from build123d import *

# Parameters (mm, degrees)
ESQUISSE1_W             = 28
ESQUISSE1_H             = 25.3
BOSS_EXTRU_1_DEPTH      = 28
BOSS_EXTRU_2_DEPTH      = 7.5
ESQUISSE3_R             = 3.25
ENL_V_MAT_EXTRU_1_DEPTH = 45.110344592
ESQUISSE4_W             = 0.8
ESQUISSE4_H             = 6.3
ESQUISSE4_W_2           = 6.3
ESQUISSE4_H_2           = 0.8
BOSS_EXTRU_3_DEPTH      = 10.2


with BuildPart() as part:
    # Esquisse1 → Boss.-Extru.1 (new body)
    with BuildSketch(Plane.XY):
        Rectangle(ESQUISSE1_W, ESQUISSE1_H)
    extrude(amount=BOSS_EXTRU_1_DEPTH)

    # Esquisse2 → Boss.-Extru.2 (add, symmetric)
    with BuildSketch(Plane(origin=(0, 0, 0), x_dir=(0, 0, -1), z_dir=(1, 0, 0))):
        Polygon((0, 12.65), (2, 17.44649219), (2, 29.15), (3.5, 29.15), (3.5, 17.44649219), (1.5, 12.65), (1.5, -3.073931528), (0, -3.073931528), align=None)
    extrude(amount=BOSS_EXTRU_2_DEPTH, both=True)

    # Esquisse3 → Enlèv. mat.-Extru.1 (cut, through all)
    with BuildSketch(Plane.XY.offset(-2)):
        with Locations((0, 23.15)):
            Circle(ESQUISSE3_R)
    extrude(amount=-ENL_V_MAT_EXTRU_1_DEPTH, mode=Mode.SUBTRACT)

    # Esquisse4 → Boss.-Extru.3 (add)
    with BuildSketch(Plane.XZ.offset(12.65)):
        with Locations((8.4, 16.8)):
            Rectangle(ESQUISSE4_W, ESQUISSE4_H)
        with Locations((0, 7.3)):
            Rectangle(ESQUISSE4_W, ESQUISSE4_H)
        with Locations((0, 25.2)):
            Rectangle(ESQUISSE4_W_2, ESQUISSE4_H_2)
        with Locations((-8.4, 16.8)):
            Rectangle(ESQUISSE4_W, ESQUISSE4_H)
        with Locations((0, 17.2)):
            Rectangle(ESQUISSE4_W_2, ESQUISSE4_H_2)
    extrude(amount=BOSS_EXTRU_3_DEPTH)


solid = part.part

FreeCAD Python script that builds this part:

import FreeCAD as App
import Part
import Sketcher
from FreeCAD import Vector


def add_polygon(sketch, points):
    """Adds a closed chain of lines whose ends are joined by coincident constraints."""
    first, n = sketch.GeometryCount, len(points)
    for a, b in zip(points, points[1:] + points[:1]):
        sketch.addGeometry(Part.LineSegment(App.Vector(*a, 0), App.Vector(*b, 0)), False)
    for i in range(n):
        sketch.addConstraint(Sketcher.Constraint("Coincident", first + i, 2, first + (i + 1) % n, 1))

doc = App.newDocument("Part")
body = doc.addObject("PartDesign::Body", "Body")

sketch1 = body.newObject("Sketcher::SketchObject", "Sketch")
sketch1.AttachmentSupport = (doc.getObject("XY_Plane"), [""])
sketch1.MapMode = "FlatFace"
add_polygon(sketch1, [(-14, 13), (-14, -13), (14, -13), (14, 13)])
sketch1.addConstraint([
    Sketcher.Constraint("Vertical", 0),
    Sketcher.Constraint("Horizontal", 1),
    Sketcher.Constraint("Vertical", 2),
    Sketcher.Constraint("Horizontal", 3),
    Sketcher.Constraint("Symmetric", 0, 2, 2, 2, -1, 1),
    Sketcher.Constraint("DistanceX", 1, 1, 1, 2, 28.0),
    Sketcher.Constraint("DistanceY", 0, 2, 0, 1, 25.3),
])
pad1 = body.newObject("PartDesign::Pad", "Pad")
pad1.Profile = sketch1
pad1.Length = 28

sketch2 = body.newObject("Sketcher::SketchObject", "Sketch001")
sketch2.AttachmentSupport = (doc.getObject("YZ_Plane"), [""])
sketch2.MapMode = "FlatFace"
add_polygon(sketch2, [(17.4, -2), (12.7, 0), (-3.1, 0), (-3.1, -1.5), (12.7, -1.5), (17.4, -3.5), (29.1, -3.5), (29.1, -2)])
sketch2.addConstraint([
    Sketcher.Constraint("Horizontal", 1),
    Sketcher.Constraint("Vertical", 2),
    Sketcher.Constraint("Horizontal", 3),
    Sketcher.Constraint("Horizontal", 5),
    Sketcher.Constraint("Vertical", 6),
    Sketcher.Constraint("Horizontal", 7),
    Sketcher.Constraint("PointOnObject", 0, 2, -1),
    Sketcher.Constraint("Parallel", 0, 4),
    Sketcher.Constraint("Vertical", 0, 2, 3, 2),
    Sketcher.Constraint("Vertical", 4, 2, 7, 2),
    Sketcher.Constraint("DistanceY", 2, 2, 2, 1, 1.5),
    Sketcher.Constraint("DistanceY", 6, 2, -1, 1, 2.0),
    Sketcher.Constraint("DistanceX", 3, 2, 5, 2, 16.5),
    Sketcher.Constraint("DistanceX", -1, 1, 0, 2, 12.65),
    Sketcher.Constraint("DistanceX", 1, 2, 1, 1, 15.723932),
    Sketcher.Constraint("DistanceX", 5, 1, 5, 2, 11.703508),
])
pad2 = body.newObject("PartDesign::Pad", "Pad001")
pad2.Profile = sketch2
pad2.Length = 15
pad2.Midplane = True

sketch3 = body.newObject("Sketcher::SketchObject", "Sketch002")
sketch3.AttachmentSupport = (doc.getObject("XY_Plane"), [""])
sketch3.MapMode = "FlatFace"
sketch3.AttachmentOffset = App.Placement(Vector(0, 0, -2), App.Rotation())
sketch3.addGeometry(Part.Circle(Vector(0, 23.1, 0), Vector(0, 0, 1), 3.2), False)
sketch3.addConstraint([
    Sketcher.Constraint("PointOnObject", 0, 3, -2),
    Sketcher.Constraint("Diameter", 0, 6.5),
    Sketcher.Constraint("DistanceY", -1, 1, 0, 3, 23.15),
])
pocket1 = body.newObject("PartDesign::Pocket", "Pocket")
pocket1.Profile = sketch3
pocket1.Type = "ThroughAll"

sketch4 = body.newObject("Sketcher::SketchObject", "Sketch003")
sketch4.AttachmentSupport = (doc.getObject("XZ_Plane"), [""])
sketch4.MapMode = "FlatFace"
sketch4.AttachmentOffset = App.Placement(Vector(0, 0, 12.65), App.Rotation())
add_polygon(sketch4, [(8, 19.9), (8, 13.7), (8.8, 13.7), (8.8, 19.9)])
add_polygon(sketch4, [(-0.4, 10.4), (-0.4, 4.2), (0.4, 4.2), (0.4, 10.4)])
add_polygon(sketch4, [(-3.1, 25.6), (-3.1, 24.8), (3.1, 24.8), (3.1, 25.6)])
add_polygon(sketch4, [(-8.8, 19.9), (-8.8, 13.7), (-8, 13.7), (-8, 19.9)])
add_polygon(sketch4, [(-3.1, 17.6), (-3.1, 16.8), (3.1, 16.8), (3.1, 17.6)])
sketch4.addConstraint([
    Sketcher.Constraint("Vertical", 0),
    Sketcher.Constraint("Horizontal", 1),
    Sketcher.Constraint("Vertical", 2),
    Sketcher.Constraint("Horizontal", 3),
    Sketcher.Constraint("Vertical", 4),
    Sketcher.Constraint("Horizontal", 5),
    Sketcher.Constraint("Vertical", 6),
    Sketcher.Constraint("Horizontal", 7),
    Sketcher.Constraint("Vertical", 8),
    Sketcher.Constraint("Horizontal", 9),
    Sketcher.Constraint("Vertical", 10),
    Sketcher.Constraint("Horizontal", 11),
    Sketcher.Constraint("Vertical", 12),
    Sketcher.Constraint("Horizontal", 13),
    Sketcher.Constraint("Vertical", 14),
    Sketcher.Constraint("Horizontal", 15),
    Sketcher.Constraint("Vertical", 16),
    Sketcher.Constraint("Horizontal", 17),
    Sketcher.Constraint("Vertical", 18),
    Sketcher.Constraint("Horizontal", 19),
    Sketcher.Constraint("Symmetric", 1, 2, 12, 2, -2),
    Sketcher.Constraint("Symmetric", 3, 2, 14, 2, -2),
    Sketcher.Constraint("Vertical", 11, 2, 16, 2),
    Sketcher.Constraint("Vertical", 10, 2, 17, 2),
    Sketcher.Constraint("Equal", 3, 5),
    Sketcher.Constraint("Equal", 19, 0),
    Sketcher.Constraint("Equal", 2, 4),
    Sketcher.Constraint("Equal", 15, 8),
    Sketcher.Constraint("Equal", 10, 16),
    Sketcher.Constraint("DistanceX", 1, 1, 1, 2, 0.8),
    Sketcher.Constraint("DistanceX", 9, 1, 9, 2, 6.3),
    Sketcher.Constraint("DistanceX", -1, 1, 0, 2, 8.0),
    Sketcher.Constraint("DistanceX", 4, 2, -1, 1, 0.4),
    Sketcher.Constraint("DistanceY", -1, 1, 8, 2, 24.8),
    Sketcher.Constraint("DistanceY", -1, 1, 16, 2, 16.8),
    Sketcher.Constraint("DistanceY", 4, 2, 0, 2, 9.5),
    Sketcher.Constraint("DistanceY", -1, 1, 0, 2, 13.65),
    Sketcher.Constraint("DistanceX", 8, 2, -1, 1, 3.15),
])
pad3 = body.newObject("PartDesign::Pad", "Pad002")
pad3.Profile = sketch4
pad3.Length = 10.2

doc.recompute()
